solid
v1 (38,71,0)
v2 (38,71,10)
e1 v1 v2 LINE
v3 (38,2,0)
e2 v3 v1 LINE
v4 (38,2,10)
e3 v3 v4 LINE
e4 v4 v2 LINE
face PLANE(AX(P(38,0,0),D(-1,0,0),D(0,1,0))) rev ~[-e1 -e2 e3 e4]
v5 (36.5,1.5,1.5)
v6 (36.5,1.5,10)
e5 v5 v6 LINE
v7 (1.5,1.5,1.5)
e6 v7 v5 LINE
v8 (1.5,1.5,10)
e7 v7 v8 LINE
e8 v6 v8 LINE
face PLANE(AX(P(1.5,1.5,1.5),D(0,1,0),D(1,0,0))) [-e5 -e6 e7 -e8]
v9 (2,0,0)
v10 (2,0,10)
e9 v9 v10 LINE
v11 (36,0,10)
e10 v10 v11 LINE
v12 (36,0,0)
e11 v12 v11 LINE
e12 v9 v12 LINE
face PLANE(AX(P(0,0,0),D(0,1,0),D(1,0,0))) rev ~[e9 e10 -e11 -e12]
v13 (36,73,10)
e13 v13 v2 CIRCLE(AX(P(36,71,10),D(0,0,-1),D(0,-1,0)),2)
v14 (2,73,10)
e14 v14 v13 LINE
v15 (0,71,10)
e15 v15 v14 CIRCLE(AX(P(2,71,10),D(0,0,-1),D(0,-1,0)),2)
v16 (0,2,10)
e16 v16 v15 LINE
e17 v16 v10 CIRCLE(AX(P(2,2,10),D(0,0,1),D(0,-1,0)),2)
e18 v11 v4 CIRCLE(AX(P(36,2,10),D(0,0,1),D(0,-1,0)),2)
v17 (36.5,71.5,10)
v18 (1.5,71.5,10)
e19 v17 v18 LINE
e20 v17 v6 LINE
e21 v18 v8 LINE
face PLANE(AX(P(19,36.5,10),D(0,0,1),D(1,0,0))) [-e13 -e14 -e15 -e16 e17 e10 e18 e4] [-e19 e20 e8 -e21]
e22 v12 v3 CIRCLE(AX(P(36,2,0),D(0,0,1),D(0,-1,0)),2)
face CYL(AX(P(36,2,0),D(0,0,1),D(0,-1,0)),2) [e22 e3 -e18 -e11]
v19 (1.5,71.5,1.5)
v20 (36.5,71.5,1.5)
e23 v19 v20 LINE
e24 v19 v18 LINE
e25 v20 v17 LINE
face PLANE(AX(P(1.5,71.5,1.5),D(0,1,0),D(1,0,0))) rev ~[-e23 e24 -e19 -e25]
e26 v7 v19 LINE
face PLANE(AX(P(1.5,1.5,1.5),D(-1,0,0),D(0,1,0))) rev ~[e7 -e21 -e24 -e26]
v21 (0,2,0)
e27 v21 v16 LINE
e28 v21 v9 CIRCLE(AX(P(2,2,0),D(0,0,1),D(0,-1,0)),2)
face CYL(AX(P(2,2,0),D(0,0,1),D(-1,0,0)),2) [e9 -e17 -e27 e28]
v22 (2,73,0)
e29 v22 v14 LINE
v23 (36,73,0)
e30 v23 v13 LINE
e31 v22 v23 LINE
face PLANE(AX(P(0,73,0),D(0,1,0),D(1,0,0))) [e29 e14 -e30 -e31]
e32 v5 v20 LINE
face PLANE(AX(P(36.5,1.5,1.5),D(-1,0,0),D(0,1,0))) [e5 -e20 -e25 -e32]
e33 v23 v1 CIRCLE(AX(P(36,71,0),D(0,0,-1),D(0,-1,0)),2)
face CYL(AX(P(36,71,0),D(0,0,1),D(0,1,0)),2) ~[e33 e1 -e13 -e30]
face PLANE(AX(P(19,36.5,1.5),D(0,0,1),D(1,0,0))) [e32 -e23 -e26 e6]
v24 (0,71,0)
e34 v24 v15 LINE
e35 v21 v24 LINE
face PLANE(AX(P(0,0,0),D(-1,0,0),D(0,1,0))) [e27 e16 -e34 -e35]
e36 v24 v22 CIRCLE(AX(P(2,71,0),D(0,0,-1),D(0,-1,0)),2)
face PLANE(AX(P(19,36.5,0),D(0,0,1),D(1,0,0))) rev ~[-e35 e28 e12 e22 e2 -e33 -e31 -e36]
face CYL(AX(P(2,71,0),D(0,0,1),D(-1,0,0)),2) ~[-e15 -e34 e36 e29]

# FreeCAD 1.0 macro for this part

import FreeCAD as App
import Part
import Sketcher

V = App.Vector
Q = App.Units.Quantity


def edges_at(feature, points):
    """Names of the edges that pass closest to the given points."""
    edges = feature.Shape.Edges
    near = lambda p: min(range(len(edges)), key=lambda i: edges[i].distToShape(Part.Vertex(*p))[0])
    return sorted({f"Edge{near(p) + 1}" for p in points})

doc = App.newDocument("Part")
body = doc.addObject("PartDesign::Body", "Body")

sketch1 = doc.addObject("Sketcher::SketchObject", "Sketch")
body.addObject(sketch1)
sketch1.AttachmentSupport = (doc.XY_Plane, [""])
sketch1.MapMode = "FlatFace"
sketch1.AttachmentOffset = App.Placement(V(0, 0, 1.5), App.Rotation())
sketch1.addGeometry([
    Part.LineSegment(V(1.5, 71.5, 0), V(1.5, 1.5, 0)),
    Part.LineSegment(V(1.5, 1.5, 0), V(36.5, 1.5, 0)),
    Part.LineSegment(V(36.5, 1.5, 0), V(36.5, 71.5, 0)),
    Part.LineSegment(V(36.5, 71.5, 0), V(1.5, 71.5, 0)),
], False)
sketch1.addConstraint([
    Sketcher.Constraint("Coincident", 0, 2, 1, 1),
    Sketcher.Constraint("Coincident", 1, 2, 2, 1),
    Sketcher.Constraint("Coincident", 2, 2, 3, 1),
    Sketcher.Constraint("Coincident", 3, 2, 0, 1),
    Sketcher.Constraint("Vertical", 0),
    Sketcher.Constraint("Horizontal", 1),
    Sketcher.Constraint("Vertical", 2),
    Sketcher.Constraint("Horizontal", 3),
    Sketcher.Constraint("DistanceX", 1, 1, 1, 2, Q("35 mm")),
    Sketcher.Constraint("DistanceY", 0, 2, 0, 1, Q("70 mm")),
    Sketcher.Constraint("DistanceX", -1, 1, 0, 2, Q("1.5 mm")),
    Sketcher.Constraint("DistanceY", -1, 1, 0, 2, Q("1.5 mm")),
])
pad1 = doc.addObject("PartDesign::Pad", "Pad")
body.addObject(pad1)
pad1.Profile = sketch1
pad1.Length = 9
body2 = doc.addObject("PartDesign::Body", "Body001")

sketch2 = doc.addObject("Sketcher::SketchObject", "Sketch001")
body2.addObject(sketch2)
sketch2.AttachmentSupport = (doc.getObject("XY_Plane001"), [""])
sketch2.MapMode = "FlatFace"
sketch2.addGeometry([
    Part.LineSegment(V(0, 73, 0), V(0, 0, 0)),
    Part.LineSegment(V(0, 0, 0), V(38, 0, 0)),
    Part.LineSegment(V(38, 0, 0), V(38, 73, 0)),
    Part.LineSegment(V(38, 73, 0), V(0, 73, 0)),
], False)
sketch2.addConstraint([
    Sketcher.Constraint("Coincident", 0, 2, 1, 1),
    Sketcher.Constraint("Coincident", 1, 2, 2, 1),
    Sketcher.Constraint("Coincident", 2, 2, 3, 1),
    Sketcher.Constraint("Coincident", 3, 2, 0, 1),
    Sketcher.Constraint("Vertical", 0),
    Sketcher.Constraint("Horizontal", 1),
    Sketcher.Constraint("Vertical", 2),
    Sketcher.Constraint("Horizontal", 3),
    Sketcher.Constraint("Coincident", 0, 2, -1, 1),
    Sketcher.Constraint("DistanceX", 1, 1, 1, 2, Q("38 mm")),
    Sketcher.Constraint("DistanceY", 0, 2, 0, 1, Q("73 mm")),
])
pad2 = doc.addObject("PartDesign::Pad", "Pad001")
body2.addObject(pad2)
pad2.Profile = sketch2
pad2.Length = 10
doc.recompute()

boolean = doc.addObject("PartDesign::Boolean", "Boolean")
body2.addObject(boolean)
boolean.Type = "Cut"
boolean.addObjects([body])
doc.recompute()

fillet = doc.addObject("PartDesign::Fillet", "Fillet")
body2.addObject(fillet)
fillet.Base = (boolean, edges_at(boolean, [
    (0, 0, 5),
    (0, 73, 5),
    (38, 0, 5),
    (38, 73, 5),
]))
fillet.Radius = 2

doc.recompute()
